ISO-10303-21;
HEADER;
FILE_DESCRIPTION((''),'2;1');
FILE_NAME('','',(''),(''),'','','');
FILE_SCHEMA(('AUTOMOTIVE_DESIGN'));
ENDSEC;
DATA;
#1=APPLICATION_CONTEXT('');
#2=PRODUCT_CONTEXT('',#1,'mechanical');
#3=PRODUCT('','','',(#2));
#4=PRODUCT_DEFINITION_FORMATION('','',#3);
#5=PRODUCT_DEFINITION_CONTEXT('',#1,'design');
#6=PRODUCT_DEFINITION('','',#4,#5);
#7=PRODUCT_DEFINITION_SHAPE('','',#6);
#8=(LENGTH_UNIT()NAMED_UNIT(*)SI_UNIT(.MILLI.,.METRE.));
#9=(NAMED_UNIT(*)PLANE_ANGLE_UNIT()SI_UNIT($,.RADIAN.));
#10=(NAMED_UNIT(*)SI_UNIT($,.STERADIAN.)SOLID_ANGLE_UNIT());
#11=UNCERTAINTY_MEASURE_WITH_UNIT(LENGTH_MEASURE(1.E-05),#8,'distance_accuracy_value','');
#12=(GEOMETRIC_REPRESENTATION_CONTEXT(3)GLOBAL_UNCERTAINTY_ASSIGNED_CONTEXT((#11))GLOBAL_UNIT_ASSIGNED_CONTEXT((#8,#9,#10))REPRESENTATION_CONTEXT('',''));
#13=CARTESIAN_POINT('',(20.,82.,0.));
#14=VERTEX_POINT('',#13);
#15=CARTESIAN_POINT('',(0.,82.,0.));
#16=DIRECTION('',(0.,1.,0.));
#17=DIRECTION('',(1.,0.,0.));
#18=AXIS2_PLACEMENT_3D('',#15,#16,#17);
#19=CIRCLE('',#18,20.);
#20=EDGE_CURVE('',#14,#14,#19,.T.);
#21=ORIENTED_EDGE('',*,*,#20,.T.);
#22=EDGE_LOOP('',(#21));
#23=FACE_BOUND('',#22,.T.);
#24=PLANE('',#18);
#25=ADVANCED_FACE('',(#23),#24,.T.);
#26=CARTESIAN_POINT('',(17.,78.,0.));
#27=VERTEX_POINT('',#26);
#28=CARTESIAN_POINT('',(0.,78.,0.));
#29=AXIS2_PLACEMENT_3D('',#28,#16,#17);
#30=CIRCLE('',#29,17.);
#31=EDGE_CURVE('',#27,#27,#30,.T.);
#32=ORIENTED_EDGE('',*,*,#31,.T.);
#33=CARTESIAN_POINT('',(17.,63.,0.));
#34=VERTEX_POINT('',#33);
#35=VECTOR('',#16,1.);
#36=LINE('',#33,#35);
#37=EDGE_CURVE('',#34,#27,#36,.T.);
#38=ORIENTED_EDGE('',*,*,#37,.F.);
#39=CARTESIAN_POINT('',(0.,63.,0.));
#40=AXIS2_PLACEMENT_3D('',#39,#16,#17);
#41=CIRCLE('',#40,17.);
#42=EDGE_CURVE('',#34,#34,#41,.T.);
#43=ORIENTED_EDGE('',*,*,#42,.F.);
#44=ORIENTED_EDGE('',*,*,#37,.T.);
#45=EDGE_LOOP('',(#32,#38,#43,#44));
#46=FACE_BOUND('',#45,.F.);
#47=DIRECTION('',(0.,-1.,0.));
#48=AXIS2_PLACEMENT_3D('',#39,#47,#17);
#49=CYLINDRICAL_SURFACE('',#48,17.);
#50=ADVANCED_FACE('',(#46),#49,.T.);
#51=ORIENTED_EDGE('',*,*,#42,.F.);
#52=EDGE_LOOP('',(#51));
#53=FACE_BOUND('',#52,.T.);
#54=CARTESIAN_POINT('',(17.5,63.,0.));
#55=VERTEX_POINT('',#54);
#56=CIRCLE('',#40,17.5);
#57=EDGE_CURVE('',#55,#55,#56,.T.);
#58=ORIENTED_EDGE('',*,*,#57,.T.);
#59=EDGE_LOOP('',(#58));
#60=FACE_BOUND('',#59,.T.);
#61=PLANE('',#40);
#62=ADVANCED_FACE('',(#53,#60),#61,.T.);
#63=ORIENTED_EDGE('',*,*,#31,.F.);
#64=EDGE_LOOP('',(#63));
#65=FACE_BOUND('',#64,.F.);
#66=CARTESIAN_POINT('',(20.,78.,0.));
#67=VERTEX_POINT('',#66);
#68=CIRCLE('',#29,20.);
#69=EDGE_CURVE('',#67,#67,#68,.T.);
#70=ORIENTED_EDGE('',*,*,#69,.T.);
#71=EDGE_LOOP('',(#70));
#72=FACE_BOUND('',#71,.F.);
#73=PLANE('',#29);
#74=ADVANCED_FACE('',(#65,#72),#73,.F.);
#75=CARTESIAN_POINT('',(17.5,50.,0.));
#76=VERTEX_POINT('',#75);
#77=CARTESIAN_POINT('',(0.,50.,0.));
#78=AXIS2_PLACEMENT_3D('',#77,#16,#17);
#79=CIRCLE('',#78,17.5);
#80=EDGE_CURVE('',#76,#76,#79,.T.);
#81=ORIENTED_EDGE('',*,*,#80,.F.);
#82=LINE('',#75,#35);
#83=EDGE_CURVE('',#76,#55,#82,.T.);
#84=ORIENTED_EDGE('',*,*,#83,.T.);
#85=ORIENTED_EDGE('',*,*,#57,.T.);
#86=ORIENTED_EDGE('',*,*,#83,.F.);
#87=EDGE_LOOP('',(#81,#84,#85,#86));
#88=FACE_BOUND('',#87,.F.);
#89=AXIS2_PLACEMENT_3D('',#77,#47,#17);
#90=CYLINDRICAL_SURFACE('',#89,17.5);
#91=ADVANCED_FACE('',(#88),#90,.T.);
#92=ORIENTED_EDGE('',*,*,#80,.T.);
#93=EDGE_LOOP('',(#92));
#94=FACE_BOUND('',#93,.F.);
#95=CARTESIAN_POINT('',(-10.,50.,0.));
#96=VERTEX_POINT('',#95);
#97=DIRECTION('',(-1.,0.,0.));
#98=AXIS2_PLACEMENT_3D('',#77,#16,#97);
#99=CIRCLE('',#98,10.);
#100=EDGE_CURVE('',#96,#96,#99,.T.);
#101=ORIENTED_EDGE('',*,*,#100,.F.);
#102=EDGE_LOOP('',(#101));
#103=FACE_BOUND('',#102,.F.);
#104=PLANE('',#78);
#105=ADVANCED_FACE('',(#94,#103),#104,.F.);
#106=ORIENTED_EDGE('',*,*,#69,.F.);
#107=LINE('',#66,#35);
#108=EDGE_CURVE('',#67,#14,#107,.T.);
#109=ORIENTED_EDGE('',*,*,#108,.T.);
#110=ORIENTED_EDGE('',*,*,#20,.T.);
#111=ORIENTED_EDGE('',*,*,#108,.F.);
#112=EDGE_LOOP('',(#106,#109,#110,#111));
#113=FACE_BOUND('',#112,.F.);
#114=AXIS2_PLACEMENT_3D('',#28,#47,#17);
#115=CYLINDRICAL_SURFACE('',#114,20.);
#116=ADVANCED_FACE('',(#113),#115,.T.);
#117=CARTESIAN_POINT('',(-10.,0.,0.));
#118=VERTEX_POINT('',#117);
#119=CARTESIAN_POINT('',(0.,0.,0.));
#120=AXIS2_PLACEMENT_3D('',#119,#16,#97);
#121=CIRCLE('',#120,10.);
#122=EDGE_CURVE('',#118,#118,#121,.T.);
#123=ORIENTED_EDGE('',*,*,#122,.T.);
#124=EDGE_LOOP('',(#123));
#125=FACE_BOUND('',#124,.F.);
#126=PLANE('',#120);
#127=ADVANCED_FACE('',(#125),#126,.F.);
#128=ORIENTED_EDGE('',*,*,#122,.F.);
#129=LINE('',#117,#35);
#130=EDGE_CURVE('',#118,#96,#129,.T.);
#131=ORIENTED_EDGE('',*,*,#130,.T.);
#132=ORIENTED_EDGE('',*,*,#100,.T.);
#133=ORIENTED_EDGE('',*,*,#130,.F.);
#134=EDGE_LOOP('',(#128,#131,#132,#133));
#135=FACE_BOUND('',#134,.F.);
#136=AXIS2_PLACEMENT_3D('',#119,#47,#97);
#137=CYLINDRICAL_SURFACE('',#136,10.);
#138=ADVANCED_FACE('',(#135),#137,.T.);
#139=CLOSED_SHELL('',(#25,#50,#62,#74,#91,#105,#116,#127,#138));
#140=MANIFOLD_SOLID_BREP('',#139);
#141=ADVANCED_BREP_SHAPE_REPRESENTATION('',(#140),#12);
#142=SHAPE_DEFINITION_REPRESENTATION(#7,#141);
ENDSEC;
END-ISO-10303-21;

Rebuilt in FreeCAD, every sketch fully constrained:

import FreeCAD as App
import Part
import Sketcher
Q = App.Units.Quantity

doc = App.newDocument("Part")
body = doc.addObject("PartDesign::Body", "Body")

# Sketch on XZ plane
sketch1 = body.newObject("Sketcher::SketchObject", "Sketch")
sketch1.AttachmentSupport = (doc.getObject("XZ_Plane"), [""])
sketch1.MapMode = "FlatFace"
sketch1.addGeometry(Part.Circle(App.Vector(0, 0, 0), App.Vector(0, 0, 1), 10), False)
sketch1.addConstraint([
    Sketcher.Constraint("Coincident", 0, 3, -1, 1),
    Sketcher.Constraint("Diameter", 0, Q("20 mm")),
])
pad1 = body.newObject("PartDesign::Pad", "Pad")
pad1.Profile = sketch1
pad1.Length = 50
pad1.Reversed = True

# Sketch on XZ plane
sketch2 = body.newObject("Sketcher::SketchObject", "Sketch001")
sketch2.AttachmentSupport = (doc.getObject("XZ_Plane"), [""])
sketch2.MapMode = "FlatFace"
sketch2.AttachmentOffset = App.Placement(App.Vector(0, 0, -50), App.Rotation())
sketch2.addGeometry(Part.Circle(App.Vector(0, 0, 0), App.Vector(0, 0, 1), 17.5), False)
sketch2.addConstraint([
    Sketcher.Constraint("Coincident", 0, 3, -1, 1),
    Sketcher.Constraint("Diameter", 0, Q("35 mm")),
])
pad2 = body.newObject("PartDesign::Pad", "Pad001")
pad2.Profile = sketch2
pad2.Length = 13
pad2.Reversed = True

# Sketch on XZ plane
sketch3 = body.newObject("Sketcher::SketchObject", "Sketch002")
sketch3.AttachmentSupport = (doc.getObject("XZ_Plane"), [""])
sketch3.MapMode = "FlatFace"
sketch3.AttachmentOffset = App.Placement(App.Vector(0, 0, -63), App.Rotation())
sketch3.addGeometry(Part.Circle(App.Vector(0, 0, 0), App.Vector(0, 0, 1), 17), False)
sketch3.addConstraint([
    Sketcher.Constraint("Coincident", 0, 3, -1, 1),
    Sketcher.Constraint("Diameter", 0, Q("34 mm")),
])
pad3 = body.newObject("PartDesign::Pad", "Pad002")
pad3.Profile = sketch3
pad3.Length = 15
pad3.Reversed = True

# Sketch on XZ plane
sketch4 = body.newObject("Sketcher::SketchObject", "Sketch003")
sketch4.AttachmentSupport = (doc.getObject("XZ_Plane"), [""])
sketch4.MapMode = "FlatFace"
sketch4.AttachmentOffset = App.Placement(App.Vector(0, 0, -78), App.Rotation())
sketch4.addGeometry(Part.Circle(App.Vector(0, 0, 0), App.Vector(0, 0, 1), 20), False)
sketch4.addConstraint([
    Sketcher.Constraint("Coincident", 0, 3, -1, 1),
    Sketcher.Constraint("Diameter", 0, Q("40 mm")),
])
pad4 = body.newObject("PartDesign::Pad", "Pad003")
pad4.Profile = sketch4
pad4.Length = 4
pad4.Reversed = True

doc.recompute()
